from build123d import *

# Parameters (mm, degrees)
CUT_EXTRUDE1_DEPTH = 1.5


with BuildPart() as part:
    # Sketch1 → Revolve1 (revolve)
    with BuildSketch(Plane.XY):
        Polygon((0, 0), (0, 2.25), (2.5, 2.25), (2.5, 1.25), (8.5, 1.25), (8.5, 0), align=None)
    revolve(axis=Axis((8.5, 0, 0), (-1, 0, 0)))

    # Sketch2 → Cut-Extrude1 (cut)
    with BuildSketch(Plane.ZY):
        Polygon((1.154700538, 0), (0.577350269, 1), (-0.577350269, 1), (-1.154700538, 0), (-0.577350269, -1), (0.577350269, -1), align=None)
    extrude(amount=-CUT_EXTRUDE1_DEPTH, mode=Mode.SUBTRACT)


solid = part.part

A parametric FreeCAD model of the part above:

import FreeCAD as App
import Part
import Sketcher
Q = App.Units.Quantity

doc = App.newDocument("Part")
body = doc.addObject("PartDesign::Body", "Body")

sketch1 = doc.addObject("Sketcher::SketchObject", "Sketch")
body.addObject(sketch1)
sketch1.AttachmentSupport = (doc.XY_Plane, [""])
sketch1.MapMode = "FlatFace"
sketch1.addGeometry([
    Part.LineSegment(App.Vector(0, 2.25, 0), App.Vector(0, 0, 0)),
    Part.LineSegment(App.Vector(0, 0, 0), App.Vector(8.5, 0, 0)),
    Part.LineSegment(App.Vector(8.5, 0, 0), App.Vector(8.5, 1.25, 0)),
    Part.LineSegment(App.Vector(8.5, 1.25, 0), App.Vector(2.5, 1.25, 0)),
    Part.LineSegment(App.Vector(2.5, 1.25, 0), App.Vector(2.5, 2.25, 0)),
    Part.LineSegment(App.Vector(2.5, 2.25, 0), App.Vector(0, 2.25, 0)),
], False)
sketch1.addConstraint([
    Sketcher.Constraint("Coincident", 0, 2, 1, 1),
    Sketcher.Constraint("Coincident", 1, 2, 2, 1),
    Sketcher.Constraint("Coincident", 2, 2, 3, 1),
    Sketcher.Constraint("Coincident", 3, 2, 4, 1),
    Sketcher.Constraint("Coincident", 4, 2, 5, 1),
    Sketcher.Constraint("Coincident", 5, 2, 0, 1),
    Sketcher.Constraint("Vertical", 0),
    Sketcher.Constraint("Horizontal", 1),
    Sketcher.Constraint("Vertical", 2),
    Sketcher.Constraint("Horizontal", 3),
    Sketcher.Constraint("Vertical", 4),
    Sketcher.Constraint("Horizontal", 5),
    Sketcher.Constraint("Coincident", 0, 2, -1, 1),
    Sketcher.Constraint("DistanceX", 3, 2, 3, 1, Q("6 mm")),
    Sketcher.Constraint("DistanceY", 4, 1, 4, 2, Q("1 mm")),
    Sketcher.Constraint("DistanceX", 1, 1, 1, 2, Q("8.5 mm")),
    Sketcher.Constraint("DistanceY", 0, 2, 0, 1, Q("2.25 mm")),
])
revolution = doc.addObject("PartDesign::Revolution", "Revolution")
body.addObject(revolution)
revolution.Profile = sketch1
revolution.ReferenceAxis = (sketch1, ["H_Axis"])
revolution.Angle = 360

sketch2 = doc.addObject("Sketcher::SketchObject", "Sketch001")
body.addObject(sketch2)
sketch2.AttachmentSupport = (doc.YZ_Plane, [""])
sketch2.MapMode = "FlatFace"
sketch2.addGeometry([
    Part.LineSegment(App.Vector(0, 1.154701, 0), App.Vector(1, 0.57735, 0)),
    Part.LineSegment(App.Vector(1, 0.57735, 0), App.Vector(1, -0.57735, 0)),
    Part.LineSegment(App.Vector(1, -0.57735, 0), App.Vector(0, -1.154701, 0)),
    Part.LineSegment(App.Vector(0, -1.154701, 0), App.Vector(-1, -0.57735, 0)),
    Part.LineSegment(App.Vector(-1, -0.57735, 0), App.Vector(-1, 0.57735, 0)),
    Part.LineSegment(App.Vector(-1, 0.57735, 0), App.Vector(0, 1.154701, 0)),
], False)
sketch2.addConstraint([
    Sketcher.Constraint("Coincident", 0, 2, 1, 1),
    Sketcher.Constraint("Coincident", 1, 2, 2, 1),
    Sketcher.Constraint("Coincident", 2, 2, 3, 1),
    Sketcher.Constraint("Coincident", 3, 2, 4, 1),
    Sketcher.Constraint("Coincident", 4, 2, 5, 1),
    Sketcher.Constraint("Coincident", 5, 2, 0, 1),
    Sketcher.Constraint("Vertical", 1),
    Sketcher.Constraint("Vertical", 4),
    Sketcher.Constraint("Symmetric", 0, 2, 3, 2, -1, 1),
    Sketcher.Constraint("Symmetric", 2, 2, 5, 2, -1, 1),
    Sketcher.Constraint("PointOnObject", 2, 2, -2),
    Sketcher.Constraint("Parallel", 2, 5),
    Sketcher.Constraint("Horizontal", 1, 2, 3, 2),
    Sketcher.Constraint("Angle", 0, Q("-30 deg")),
    Sketcher.Constraint("DistanceX", -1, 1, 0, 2, Q("1 mm")),
    Sketcher.Constraint("DistanceY", 1, 2, 1, 1, Q("1.154701 mm")),
])
pocket1 = doc.addObject("PartDesign::Pocket", "Pocket")
body.addObject(pocket1)
pocket1.Profile = sketch2
pocket1.Length = 1.5
pocket1.Reversed = True

doc.recompute()
